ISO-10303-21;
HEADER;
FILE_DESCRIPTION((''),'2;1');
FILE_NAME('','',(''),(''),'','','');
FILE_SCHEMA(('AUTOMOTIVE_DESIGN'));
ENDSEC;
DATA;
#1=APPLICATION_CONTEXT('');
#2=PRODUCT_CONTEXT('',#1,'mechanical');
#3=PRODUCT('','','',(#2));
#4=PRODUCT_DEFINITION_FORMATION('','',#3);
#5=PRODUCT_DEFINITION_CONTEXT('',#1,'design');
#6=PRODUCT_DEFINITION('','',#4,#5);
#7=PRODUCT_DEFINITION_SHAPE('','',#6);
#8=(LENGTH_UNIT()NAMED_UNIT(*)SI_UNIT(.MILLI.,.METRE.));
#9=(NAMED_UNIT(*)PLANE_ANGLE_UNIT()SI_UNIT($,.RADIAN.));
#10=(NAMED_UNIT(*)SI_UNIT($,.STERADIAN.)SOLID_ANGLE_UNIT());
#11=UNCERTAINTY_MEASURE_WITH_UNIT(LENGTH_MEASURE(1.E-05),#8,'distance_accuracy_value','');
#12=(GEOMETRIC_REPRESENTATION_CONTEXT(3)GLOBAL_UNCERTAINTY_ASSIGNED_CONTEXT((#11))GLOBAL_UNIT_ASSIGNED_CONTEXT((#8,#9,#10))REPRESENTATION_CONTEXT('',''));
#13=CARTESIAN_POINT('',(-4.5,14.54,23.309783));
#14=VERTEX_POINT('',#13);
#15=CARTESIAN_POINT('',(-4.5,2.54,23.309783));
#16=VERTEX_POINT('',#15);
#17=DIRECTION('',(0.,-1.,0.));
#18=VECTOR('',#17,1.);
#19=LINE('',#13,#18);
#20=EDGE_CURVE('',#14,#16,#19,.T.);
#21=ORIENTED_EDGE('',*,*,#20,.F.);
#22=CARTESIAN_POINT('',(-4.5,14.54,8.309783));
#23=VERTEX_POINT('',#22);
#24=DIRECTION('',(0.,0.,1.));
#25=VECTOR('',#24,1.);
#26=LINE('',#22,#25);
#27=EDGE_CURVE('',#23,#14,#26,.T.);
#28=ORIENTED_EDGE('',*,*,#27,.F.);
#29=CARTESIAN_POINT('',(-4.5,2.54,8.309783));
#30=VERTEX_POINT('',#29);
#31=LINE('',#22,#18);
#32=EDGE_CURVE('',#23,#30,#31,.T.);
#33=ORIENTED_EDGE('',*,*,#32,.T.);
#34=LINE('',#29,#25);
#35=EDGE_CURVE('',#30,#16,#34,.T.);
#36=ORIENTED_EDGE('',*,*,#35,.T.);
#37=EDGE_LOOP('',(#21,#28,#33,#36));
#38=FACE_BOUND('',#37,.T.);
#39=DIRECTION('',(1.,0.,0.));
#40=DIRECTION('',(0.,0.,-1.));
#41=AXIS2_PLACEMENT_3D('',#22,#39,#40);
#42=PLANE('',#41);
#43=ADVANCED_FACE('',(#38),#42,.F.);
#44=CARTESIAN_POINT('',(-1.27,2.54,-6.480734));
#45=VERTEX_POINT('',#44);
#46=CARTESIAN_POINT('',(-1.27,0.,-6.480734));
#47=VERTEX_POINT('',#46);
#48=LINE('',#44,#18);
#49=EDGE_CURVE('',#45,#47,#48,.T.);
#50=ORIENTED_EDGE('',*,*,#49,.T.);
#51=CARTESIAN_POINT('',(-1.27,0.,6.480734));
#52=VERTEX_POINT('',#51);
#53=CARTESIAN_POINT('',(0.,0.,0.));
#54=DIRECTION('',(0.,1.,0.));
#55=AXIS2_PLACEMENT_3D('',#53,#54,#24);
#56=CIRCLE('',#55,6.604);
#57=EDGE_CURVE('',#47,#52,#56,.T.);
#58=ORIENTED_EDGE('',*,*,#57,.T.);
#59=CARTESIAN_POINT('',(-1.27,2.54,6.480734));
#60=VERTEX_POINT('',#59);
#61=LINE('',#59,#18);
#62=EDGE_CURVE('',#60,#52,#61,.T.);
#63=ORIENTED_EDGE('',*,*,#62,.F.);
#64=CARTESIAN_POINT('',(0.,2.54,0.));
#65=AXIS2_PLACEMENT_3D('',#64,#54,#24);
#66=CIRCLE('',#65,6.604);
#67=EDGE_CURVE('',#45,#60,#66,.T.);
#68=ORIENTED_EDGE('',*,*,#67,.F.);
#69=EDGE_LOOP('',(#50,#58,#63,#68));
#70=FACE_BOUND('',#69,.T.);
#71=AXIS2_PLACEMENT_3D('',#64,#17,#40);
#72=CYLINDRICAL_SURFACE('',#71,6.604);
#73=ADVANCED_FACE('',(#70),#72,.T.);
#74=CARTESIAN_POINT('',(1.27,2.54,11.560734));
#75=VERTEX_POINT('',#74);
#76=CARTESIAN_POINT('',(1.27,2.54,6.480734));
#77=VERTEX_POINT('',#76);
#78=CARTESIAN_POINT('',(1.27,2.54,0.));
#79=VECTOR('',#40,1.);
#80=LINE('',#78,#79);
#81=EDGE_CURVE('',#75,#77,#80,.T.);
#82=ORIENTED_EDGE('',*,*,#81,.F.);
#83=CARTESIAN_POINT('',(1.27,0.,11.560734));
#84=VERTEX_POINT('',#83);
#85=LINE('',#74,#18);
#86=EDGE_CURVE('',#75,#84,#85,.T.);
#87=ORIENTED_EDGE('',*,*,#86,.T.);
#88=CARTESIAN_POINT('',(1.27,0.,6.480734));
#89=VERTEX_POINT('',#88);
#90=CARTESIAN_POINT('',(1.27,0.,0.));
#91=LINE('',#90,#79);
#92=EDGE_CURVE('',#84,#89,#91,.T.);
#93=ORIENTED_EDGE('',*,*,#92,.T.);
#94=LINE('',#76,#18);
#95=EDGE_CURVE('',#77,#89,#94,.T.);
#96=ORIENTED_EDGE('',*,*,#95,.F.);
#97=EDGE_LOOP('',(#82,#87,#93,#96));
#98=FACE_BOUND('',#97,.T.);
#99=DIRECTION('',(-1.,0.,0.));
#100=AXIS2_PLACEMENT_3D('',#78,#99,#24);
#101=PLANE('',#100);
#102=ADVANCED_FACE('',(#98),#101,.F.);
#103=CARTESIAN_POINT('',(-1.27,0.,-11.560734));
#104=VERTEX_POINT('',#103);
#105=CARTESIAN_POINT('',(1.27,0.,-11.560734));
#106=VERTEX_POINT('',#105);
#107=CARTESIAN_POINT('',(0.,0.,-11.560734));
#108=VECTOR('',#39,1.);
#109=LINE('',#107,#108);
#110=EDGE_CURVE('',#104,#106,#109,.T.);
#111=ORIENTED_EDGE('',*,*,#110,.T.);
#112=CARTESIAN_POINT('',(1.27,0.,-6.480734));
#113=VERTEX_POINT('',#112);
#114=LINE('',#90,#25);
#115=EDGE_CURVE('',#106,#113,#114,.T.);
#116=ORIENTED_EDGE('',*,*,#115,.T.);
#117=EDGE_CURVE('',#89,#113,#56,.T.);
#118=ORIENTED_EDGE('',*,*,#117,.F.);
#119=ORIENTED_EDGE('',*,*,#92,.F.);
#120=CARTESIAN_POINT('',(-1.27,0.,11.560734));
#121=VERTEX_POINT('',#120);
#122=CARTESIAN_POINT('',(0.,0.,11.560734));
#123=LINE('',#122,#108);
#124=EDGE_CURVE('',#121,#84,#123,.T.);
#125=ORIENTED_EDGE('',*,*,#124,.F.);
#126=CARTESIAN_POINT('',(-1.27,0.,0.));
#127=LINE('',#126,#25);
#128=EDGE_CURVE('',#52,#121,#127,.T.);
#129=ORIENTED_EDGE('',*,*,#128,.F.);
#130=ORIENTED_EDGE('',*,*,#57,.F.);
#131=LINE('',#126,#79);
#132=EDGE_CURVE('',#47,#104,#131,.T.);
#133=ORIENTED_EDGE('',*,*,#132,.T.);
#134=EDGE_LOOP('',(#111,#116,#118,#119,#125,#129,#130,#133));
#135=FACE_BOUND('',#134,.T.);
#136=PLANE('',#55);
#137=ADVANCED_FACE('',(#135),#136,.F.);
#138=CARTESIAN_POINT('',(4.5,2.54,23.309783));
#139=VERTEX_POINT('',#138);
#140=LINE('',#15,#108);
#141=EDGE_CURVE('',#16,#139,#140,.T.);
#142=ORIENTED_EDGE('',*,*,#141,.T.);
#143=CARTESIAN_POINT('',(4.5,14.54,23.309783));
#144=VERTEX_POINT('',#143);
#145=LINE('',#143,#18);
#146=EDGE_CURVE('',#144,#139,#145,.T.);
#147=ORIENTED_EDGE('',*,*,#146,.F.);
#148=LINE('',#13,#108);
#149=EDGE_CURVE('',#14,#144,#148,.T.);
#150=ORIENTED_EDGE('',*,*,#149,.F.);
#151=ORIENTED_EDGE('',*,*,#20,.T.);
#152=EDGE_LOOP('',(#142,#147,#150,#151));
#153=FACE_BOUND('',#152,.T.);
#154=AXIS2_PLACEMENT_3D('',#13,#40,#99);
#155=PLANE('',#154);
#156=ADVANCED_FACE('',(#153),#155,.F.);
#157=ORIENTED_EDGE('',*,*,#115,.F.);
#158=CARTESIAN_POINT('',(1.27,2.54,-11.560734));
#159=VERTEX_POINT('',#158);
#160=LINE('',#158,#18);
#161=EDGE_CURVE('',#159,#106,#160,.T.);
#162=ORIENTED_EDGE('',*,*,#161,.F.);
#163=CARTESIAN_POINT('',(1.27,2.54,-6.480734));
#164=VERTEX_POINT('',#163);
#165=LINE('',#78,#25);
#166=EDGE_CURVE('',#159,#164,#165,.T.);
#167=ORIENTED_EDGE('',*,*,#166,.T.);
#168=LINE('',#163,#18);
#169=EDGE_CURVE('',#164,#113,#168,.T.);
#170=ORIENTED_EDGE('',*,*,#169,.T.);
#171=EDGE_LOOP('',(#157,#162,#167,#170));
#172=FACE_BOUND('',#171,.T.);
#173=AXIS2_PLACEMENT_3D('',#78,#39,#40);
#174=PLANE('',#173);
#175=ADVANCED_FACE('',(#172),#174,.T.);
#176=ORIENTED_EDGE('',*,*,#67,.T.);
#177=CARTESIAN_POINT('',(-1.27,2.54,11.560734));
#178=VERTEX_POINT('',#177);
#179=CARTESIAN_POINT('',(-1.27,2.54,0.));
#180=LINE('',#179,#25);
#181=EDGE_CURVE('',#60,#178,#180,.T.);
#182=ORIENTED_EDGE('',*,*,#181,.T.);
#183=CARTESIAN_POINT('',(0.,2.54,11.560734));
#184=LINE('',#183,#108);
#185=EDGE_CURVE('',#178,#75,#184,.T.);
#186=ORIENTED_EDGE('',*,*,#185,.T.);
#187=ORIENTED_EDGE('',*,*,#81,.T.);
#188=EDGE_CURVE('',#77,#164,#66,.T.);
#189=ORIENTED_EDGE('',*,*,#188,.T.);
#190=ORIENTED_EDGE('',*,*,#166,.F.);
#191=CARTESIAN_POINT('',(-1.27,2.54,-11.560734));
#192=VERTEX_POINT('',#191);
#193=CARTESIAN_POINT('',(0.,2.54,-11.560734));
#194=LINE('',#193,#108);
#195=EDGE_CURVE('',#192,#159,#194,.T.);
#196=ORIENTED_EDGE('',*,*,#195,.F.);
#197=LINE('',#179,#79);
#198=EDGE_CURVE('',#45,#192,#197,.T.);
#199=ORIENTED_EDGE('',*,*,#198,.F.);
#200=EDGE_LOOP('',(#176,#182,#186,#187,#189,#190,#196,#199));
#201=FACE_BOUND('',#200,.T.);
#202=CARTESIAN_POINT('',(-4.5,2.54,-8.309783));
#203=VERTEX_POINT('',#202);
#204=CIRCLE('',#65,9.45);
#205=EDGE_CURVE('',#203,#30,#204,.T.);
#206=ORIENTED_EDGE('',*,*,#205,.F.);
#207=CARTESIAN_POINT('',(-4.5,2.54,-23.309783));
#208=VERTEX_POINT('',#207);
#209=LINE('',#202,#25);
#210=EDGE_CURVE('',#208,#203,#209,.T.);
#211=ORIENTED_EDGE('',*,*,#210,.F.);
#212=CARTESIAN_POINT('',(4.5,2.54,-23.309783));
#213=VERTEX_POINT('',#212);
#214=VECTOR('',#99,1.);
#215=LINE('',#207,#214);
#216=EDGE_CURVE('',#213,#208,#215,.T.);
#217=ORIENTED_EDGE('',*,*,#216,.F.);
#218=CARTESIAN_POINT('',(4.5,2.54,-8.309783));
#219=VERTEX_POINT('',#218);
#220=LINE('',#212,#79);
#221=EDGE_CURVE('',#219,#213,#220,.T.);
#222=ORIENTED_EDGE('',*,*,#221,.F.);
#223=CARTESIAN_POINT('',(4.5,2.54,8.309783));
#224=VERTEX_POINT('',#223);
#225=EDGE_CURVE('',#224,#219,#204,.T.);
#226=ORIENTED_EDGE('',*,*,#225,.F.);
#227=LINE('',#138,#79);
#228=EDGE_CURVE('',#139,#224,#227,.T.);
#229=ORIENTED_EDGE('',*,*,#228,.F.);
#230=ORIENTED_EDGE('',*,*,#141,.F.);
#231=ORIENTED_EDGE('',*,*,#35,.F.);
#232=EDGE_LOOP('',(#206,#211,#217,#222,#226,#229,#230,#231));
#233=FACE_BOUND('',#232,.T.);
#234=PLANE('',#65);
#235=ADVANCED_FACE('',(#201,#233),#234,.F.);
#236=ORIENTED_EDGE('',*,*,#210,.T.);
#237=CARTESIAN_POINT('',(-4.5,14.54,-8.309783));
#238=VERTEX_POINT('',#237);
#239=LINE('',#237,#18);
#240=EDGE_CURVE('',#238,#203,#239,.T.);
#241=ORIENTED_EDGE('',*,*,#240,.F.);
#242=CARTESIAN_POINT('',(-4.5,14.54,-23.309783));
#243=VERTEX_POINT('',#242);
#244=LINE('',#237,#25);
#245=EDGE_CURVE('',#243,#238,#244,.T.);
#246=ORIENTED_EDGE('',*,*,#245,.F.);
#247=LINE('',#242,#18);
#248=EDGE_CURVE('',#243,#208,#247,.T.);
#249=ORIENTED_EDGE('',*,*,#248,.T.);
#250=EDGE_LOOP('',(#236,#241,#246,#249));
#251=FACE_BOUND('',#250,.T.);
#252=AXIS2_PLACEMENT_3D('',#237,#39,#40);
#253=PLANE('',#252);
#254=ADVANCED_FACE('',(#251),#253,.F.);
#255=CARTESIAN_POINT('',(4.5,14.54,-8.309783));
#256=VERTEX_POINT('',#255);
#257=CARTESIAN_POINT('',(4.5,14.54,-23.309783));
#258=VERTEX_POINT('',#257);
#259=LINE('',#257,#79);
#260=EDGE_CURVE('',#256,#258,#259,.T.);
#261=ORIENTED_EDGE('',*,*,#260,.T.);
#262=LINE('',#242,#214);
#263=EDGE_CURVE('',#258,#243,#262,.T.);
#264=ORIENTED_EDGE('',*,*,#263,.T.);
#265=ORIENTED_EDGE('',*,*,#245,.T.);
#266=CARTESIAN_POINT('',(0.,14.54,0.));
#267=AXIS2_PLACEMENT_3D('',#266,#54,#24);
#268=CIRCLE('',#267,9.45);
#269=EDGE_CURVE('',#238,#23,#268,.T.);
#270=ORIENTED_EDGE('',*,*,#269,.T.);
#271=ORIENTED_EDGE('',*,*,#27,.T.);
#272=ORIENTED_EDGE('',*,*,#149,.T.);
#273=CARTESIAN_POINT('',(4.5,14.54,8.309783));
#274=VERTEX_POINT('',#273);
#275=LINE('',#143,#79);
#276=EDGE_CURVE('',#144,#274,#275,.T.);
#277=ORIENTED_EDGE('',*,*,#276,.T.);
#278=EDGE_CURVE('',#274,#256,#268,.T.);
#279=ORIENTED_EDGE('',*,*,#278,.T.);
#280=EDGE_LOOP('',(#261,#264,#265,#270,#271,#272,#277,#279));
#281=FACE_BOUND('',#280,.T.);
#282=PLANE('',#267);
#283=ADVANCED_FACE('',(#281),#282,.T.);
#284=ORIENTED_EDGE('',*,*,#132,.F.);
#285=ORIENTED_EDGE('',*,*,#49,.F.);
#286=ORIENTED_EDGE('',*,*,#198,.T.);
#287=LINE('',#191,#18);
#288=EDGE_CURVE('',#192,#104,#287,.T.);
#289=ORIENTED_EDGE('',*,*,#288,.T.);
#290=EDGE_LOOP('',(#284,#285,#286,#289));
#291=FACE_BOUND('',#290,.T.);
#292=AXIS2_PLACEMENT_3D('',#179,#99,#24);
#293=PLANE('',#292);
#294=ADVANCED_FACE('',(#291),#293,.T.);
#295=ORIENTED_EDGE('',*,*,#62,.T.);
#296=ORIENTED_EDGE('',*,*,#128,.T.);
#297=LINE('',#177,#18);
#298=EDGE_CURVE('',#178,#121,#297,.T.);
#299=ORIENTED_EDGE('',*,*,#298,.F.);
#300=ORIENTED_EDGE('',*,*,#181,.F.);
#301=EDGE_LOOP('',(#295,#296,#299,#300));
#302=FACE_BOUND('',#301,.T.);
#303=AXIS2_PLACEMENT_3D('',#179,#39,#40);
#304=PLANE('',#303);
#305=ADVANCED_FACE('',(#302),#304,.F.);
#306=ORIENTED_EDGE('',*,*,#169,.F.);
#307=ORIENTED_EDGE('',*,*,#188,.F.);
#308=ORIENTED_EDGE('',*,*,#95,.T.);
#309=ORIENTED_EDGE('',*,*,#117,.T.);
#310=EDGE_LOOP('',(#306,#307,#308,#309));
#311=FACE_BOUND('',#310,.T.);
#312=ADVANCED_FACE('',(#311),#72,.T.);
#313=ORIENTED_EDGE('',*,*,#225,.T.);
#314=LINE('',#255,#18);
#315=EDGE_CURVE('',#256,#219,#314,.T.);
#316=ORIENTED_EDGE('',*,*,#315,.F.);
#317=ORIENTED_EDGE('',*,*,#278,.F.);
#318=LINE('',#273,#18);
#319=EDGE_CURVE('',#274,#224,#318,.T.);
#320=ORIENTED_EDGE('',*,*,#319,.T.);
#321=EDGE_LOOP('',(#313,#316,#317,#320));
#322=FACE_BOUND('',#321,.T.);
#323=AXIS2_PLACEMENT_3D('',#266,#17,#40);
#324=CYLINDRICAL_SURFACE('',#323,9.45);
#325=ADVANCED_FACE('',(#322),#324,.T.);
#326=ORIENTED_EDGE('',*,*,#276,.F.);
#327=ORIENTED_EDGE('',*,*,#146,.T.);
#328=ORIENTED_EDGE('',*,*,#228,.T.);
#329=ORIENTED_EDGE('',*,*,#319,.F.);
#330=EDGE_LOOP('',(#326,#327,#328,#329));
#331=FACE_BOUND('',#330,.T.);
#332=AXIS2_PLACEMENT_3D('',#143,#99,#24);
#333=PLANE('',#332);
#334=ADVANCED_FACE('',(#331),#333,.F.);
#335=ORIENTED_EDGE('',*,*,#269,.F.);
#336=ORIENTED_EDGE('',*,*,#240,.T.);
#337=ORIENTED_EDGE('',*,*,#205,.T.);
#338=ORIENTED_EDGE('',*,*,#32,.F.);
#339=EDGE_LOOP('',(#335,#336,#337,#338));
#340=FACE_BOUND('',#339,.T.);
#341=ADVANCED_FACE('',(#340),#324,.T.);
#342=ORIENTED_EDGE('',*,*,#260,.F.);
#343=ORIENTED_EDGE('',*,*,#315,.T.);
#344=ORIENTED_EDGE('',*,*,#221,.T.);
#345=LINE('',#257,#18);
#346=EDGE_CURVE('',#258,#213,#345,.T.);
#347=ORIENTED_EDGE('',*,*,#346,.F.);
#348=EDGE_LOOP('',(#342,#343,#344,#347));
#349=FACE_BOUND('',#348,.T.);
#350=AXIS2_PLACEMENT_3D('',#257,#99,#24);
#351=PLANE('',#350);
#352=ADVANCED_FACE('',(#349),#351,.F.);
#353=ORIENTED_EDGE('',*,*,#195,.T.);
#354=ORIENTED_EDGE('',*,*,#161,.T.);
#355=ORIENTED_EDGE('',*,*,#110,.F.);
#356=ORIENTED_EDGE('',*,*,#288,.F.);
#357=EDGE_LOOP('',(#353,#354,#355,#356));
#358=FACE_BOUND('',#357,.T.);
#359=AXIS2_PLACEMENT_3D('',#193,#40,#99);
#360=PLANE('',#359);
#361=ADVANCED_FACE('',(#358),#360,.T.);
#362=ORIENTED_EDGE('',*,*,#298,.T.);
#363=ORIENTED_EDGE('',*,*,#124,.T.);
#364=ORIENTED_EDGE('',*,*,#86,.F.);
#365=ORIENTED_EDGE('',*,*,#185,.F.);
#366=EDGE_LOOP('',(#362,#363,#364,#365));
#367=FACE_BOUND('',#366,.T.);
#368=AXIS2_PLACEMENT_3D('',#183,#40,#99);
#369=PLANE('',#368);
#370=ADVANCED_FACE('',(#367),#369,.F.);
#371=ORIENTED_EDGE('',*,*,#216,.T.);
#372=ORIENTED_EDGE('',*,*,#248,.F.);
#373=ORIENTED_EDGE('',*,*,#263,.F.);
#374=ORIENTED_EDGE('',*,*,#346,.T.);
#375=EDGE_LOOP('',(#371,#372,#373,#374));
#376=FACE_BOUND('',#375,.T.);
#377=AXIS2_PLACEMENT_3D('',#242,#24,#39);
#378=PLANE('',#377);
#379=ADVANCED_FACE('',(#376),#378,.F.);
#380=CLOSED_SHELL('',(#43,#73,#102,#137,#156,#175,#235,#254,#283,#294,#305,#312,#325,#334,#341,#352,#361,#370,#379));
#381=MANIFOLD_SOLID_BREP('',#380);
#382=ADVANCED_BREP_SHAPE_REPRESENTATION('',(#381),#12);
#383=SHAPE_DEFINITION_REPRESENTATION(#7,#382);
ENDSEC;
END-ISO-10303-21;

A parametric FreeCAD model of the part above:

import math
import FreeCAD as App
import Part
import Sketcher
from FreeCAD import Vector
Q = App.Units.Quantity

doc = App.newDocument("Part")
params = doc.addObject("Spreadsheet::Sheet", "Params")
for row, (alias, value) in enumerate([
    ("sketch1_width", "2.54 mm"),
    ("sketch1_height", "5.08 mm"),
    ("pad1_length", "2.54 mm"),
    ("sketch2_width", "9 mm"),
    ("sketch2_height", "15 mm"),
    ("sketch2_radius", "9.45 mm"),
    ("pad2_length", "12 mm"),
], start=1):
    params.set(f"A{row}", alias)
    params.set(f"B{row}", "=" + value)
    params.setAlias(f"B{row}", alias)

body = doc.addObject("PartDesign::Body", "Body")

sketch1 = body.newObject("Sketcher::SketchObject", "Sketch")
sketch1.AttachmentSupport = (doc.getObject("XZ_Plane"), [""])
sketch1.MapMode = "FlatFace"
sketch1.addGeometry([
    Part.LineSegment(Vector(1.3, 11.6, 0), Vector(1.3, 6.5, 0)),
    Part.ArcOfCircle(Part.Circle(Vector(0, 0, 0), Vector(0, 0, 1), 6.6), math.radians(0), math.radians(79)),
    Part.ArcOfCircle(Part.Circle(Vector(0, 0, 0), Vector(0, 0, 1), 6.6), math.radians(-79), math.radians(0)),
    Part.LineSegment(Vector(1.3, -6.5, 0), Vector(1.3, -11.6, 0)),
    Part.LineSegment(Vector(1.3, -11.6, 0), Vector(-1.3, -11.6, 0)),
    Part.LineSegment(Vector(-1.3, -11.6, 0), Vector(-1.3, -6.5, 0)),
    Part.ArcOfCircle(Part.Circle(Vector(0, 0, 0), Vector(0, 0, 1), 6.6), math.radians(101), math.radians(259)),
    Part.LineSegment(Vector(-1.3, 6.5, 0), Vector(-1.3, 11.6, 0)),
    Part.LineSegment(Vector(-1.3, 11.6, 0), Vector(1.3, 11.6, 0)),
], False)
sketch1.addConstraint([
    Sketcher.Constraint("Coincident", 0, 2, 1, 2),
    Sketcher.Constraint("Tangent", 1, 1, 2, 2),
    Sketcher.Constraint("Coincident", 2, 1, 3, 1),
    Sketcher.Constraint("Coincident", 3, 2, 4, 1),
    Sketcher.Constraint("Coincident", 4, 2, 5, 1),
    Sketcher.Constraint("Coincident", 5, 2, 6, 2),
    Sketcher.Constraint("Coincident", 6, 1, 7, 1),
    Sketcher.Constraint("Coincident", 7, 2, 8, 1),
    Sketcher.Constraint("Coincident", 8, 2, 0, 1),
    Sketcher.Constraint("Vertical", 0),
    Sketcher.Constraint("Vertical", 3),
    Sketcher.Constraint("Horizontal", 4),
    Sketcher.Constraint("Vertical", 5),
    Sketcher.Constraint("Vertical", 7),
    Sketcher.Constraint("Horizontal", 8),
    Sketcher.Constraint("Coincident", 1, 3, -1, 1),
    Sketcher.Constraint("Coincident", 6, 3, -1, 1),
    Sketcher.Constraint("Equal", 1, 2),
    Sketcher.Constraint("Equal", 2, 6),
    Sketcher.Constraint("Symmetric", 3, 2, 7, 2, -1, 1),
    Sketcher.Constraint("PointOnObject", 1, 1, -1),
    Sketcher.Constraint("Horizontal", 2, 1, 5, 2),
    Sketcher.Constraint("Horizontal", 0, 2, 6, 1),
    Sketcher.Constraint("Radius", 1, Q("6.604 mm")),
    Sketcher.Constraint("DistanceX", 4, 2, 4, 1, Q("2.54 mm")),
    Sketcher.Constraint("DistanceY", 0, 2, 0, 1, Q("5.08 mm")),
])
sketch1.setExpression("Constraints[24]", "Params.sketch1_width")
sketch1.setExpression("Constraints[25]", "Params.sketch1_height")
pad1 = body.newObject("PartDesign::Pad", "Pad")
pad1.Profile = sketch1
pad1.setExpression("Length", "Params.pad1_length")
pad1.Reversed = True

sketch2 = body.newObject("Sketcher::SketchObject", "Sketch001")
sketch2.AttachmentSupport = (doc.getObject("XZ_Plane"), [""])
sketch2.MapMode = "FlatFace"
sketch2.AttachmentOffset = App.Placement(Vector(0, 0, -2.54), App.Rotation())
sketch2.addGeometry([
    Part.LineSegment(Vector(-4, -23, 0), Vector(-4, -8, 0)),
    Part.ArcOfCircle(Part.Circle(Vector(0, 0, 0), Vector(0, 0, 1), 9), math.radians(118), math.radians(242)),
    Part.LineSegment(Vector(-4, 8, 0), Vector(-4, 23, 0)),
    Part.LineSegment(Vector(-4, 23, 0), Vector(4, 23, 0)),
    Part.LineSegment(Vector(4, 23, 0), Vector(4, 8, 0)),
    Part.ArcOfCircle(Part.Circle(Vector(0, 0, 0), Vector(0, 0, 1), 9), math.radians(-62), math.radians(62)),
    Part.LineSegment(Vector(4, -8, 0), Vector(4, -23, 0)),
    Part.LineSegment(Vector(4, -23, 0), Vector(-4, -23, 0)),
], False)
sketch2.addConstraint([
    Sketcher.Constraint("Coincident", 0, 2, 1, 2),
    Sketcher.Constraint("Coincident", 1, 1, 2, 1),
    Sketcher.Constraint("Coincident", 2, 2, 3, 1),
    Sketcher.Constraint("Coincident", 3, 2, 4, 1),
    Sketcher.Constraint("Coincident", 4, 2, 5, 2),
    Sketcher.Constraint("Coincident", 5, 1, 6, 1),
    Sketcher.Constraint("Coincident", 6, 2, 7, 1),
    Sketcher.Constraint("Coincident", 7, 2, 0, 1),
    Sketcher.Constraint("Vertical", 0),
    Sketcher.Constraint("Vertical", 2),
    Sketcher.Constraint("Horizontal", 3),
    Sketcher.Constraint("Vertical", 4),
    Sketcher.Constraint("Vertical", 6),
    Sketcher.Constraint("Horizontal", 7),
    Sketcher.Constraint("Coincident", 1, 3, -1, 1),
    Sketcher.Constraint("Coincident", 5, 3, -1, 1),
    Sketcher.Constraint("Equal", 1, 5),
    Sketcher.Constraint("Symmetric", 2, 2, 6, 2, -1, 1),
    Sketcher.Constraint("Horizontal", 1, 1, 4, 2),
    Sketcher.Constraint("Horizontal", 0, 2, 5, 1),
    Sketcher.Constraint("DistanceX", 3, 1, 3, 2, Q("9 mm")),
    Sketcher.Constraint("DistanceY", 0, 1, 0, 2, Q("15 mm")),
    Sketcher.Constraint("Radius", 1, Q("9.45 mm")),
])
sketch2.setExpression("Constraints[20]", "Params.sketch2_width")
sketch2.setExpression("Constraints[21]", "Params.sketch2_height")
sketch2.setExpression("Constraints[22]", "Params.sketch2_radius")
pad2 = body.newObject("PartDesign::Pad", "Pad001")
pad2.Profile = sketch2
pad2.setExpression("Length", "Params.pad2_length")
pad2.Reversed = True

doc.recompute()
